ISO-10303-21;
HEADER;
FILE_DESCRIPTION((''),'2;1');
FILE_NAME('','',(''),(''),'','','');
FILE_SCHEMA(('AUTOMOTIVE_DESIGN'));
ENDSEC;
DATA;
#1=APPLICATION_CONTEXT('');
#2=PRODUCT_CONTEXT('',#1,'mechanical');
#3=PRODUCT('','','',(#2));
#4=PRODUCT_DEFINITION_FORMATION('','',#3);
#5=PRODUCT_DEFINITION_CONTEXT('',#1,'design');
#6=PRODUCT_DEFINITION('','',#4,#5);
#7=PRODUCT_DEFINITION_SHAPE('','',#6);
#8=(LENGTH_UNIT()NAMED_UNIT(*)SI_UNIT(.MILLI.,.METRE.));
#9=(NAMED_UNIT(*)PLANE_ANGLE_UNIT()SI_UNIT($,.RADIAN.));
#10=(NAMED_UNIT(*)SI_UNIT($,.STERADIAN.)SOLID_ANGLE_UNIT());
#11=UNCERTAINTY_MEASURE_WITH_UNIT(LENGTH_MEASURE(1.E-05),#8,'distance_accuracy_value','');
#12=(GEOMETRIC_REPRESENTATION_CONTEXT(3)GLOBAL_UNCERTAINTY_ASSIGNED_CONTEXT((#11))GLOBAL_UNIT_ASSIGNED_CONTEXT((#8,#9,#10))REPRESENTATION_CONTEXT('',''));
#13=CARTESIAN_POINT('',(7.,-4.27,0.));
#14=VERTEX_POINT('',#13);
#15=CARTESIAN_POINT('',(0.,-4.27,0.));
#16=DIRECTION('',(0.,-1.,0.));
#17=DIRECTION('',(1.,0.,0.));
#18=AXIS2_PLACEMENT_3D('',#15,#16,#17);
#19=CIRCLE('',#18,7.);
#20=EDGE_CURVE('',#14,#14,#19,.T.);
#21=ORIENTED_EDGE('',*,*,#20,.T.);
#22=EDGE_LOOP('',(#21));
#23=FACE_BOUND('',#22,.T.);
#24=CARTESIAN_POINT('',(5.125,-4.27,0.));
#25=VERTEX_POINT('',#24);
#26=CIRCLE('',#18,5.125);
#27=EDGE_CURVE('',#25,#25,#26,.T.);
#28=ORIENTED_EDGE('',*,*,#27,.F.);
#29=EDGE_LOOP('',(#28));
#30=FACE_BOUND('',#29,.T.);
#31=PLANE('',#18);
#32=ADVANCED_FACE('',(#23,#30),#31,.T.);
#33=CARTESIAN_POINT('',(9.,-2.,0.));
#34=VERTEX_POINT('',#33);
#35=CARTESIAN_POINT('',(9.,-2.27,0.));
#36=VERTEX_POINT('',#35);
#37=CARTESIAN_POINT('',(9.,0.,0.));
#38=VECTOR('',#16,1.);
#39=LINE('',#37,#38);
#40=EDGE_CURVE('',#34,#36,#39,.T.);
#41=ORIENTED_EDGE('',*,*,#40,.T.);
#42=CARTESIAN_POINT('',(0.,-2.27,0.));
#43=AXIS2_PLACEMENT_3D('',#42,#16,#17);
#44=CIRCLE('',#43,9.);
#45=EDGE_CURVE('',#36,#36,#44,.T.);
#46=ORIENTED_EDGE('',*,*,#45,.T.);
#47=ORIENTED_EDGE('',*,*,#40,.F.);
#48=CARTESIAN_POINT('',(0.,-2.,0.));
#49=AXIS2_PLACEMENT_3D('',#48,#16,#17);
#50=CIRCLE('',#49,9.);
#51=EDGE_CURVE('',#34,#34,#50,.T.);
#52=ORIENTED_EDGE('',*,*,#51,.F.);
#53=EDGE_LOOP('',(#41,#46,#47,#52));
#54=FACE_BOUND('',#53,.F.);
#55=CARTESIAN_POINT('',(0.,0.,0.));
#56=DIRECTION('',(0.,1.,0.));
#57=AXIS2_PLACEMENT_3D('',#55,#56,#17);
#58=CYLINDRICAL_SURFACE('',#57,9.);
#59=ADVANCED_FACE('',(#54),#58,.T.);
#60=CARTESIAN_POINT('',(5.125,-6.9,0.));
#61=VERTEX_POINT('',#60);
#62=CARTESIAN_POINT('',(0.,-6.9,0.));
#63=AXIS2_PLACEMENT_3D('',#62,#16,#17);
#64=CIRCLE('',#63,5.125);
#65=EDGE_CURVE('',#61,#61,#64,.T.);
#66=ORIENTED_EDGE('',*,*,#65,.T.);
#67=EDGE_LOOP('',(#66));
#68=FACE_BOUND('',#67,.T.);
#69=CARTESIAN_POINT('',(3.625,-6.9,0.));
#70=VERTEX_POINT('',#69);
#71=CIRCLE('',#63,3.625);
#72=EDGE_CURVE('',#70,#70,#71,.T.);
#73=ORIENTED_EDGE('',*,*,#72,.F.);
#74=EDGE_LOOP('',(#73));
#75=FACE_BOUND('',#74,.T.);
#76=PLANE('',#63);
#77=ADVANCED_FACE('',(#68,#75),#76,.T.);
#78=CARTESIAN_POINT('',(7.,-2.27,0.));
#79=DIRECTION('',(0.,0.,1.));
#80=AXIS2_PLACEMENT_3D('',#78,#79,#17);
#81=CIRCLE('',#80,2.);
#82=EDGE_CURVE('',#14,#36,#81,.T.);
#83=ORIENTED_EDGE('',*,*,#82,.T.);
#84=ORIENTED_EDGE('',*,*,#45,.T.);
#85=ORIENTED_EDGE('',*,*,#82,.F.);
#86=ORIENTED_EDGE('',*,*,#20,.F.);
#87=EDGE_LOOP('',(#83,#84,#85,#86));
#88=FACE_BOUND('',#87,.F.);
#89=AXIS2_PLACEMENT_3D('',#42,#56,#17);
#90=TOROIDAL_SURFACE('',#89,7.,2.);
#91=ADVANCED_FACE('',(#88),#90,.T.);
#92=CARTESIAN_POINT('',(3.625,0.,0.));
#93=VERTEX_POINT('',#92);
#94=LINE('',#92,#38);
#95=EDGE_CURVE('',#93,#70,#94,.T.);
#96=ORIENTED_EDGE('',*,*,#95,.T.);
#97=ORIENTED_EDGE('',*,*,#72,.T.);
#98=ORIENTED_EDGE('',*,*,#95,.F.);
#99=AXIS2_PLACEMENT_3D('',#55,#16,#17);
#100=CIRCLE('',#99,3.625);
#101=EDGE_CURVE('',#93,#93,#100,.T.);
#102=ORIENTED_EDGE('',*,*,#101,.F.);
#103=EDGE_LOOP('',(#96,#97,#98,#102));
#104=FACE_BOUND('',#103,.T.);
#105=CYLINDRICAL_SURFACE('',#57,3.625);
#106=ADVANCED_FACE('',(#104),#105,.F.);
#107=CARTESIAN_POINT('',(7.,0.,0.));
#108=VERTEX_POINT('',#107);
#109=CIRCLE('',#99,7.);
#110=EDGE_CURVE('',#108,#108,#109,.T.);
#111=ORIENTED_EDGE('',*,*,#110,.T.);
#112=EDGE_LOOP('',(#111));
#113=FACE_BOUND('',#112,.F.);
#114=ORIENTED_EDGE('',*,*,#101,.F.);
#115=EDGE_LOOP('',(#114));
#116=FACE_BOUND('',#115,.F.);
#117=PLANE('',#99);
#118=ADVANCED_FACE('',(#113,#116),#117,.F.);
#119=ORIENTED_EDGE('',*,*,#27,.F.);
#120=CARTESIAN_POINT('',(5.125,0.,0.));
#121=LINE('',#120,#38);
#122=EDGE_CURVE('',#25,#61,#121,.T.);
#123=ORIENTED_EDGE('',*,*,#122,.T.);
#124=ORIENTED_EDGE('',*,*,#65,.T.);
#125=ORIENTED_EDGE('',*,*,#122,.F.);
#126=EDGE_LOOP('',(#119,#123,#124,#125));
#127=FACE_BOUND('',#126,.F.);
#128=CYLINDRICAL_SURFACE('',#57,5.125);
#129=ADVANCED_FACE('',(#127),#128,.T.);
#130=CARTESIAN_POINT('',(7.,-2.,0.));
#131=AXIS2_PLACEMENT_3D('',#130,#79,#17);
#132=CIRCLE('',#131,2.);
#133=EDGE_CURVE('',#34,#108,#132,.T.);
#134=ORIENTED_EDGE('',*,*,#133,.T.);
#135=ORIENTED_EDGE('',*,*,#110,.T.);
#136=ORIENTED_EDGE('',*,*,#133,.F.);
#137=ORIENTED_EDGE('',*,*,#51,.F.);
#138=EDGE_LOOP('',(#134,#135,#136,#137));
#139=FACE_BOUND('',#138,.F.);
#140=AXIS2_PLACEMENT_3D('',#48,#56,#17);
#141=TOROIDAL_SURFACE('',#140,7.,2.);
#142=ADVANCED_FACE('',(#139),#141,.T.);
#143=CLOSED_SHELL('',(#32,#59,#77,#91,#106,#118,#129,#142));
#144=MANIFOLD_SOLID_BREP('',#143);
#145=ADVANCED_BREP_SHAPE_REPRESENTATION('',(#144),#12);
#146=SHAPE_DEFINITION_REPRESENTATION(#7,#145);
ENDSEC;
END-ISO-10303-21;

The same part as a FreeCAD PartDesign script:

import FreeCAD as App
import Part
import Sketcher


def edges_at(feature, points):
    """Names of the edges that pass closest to the given points."""
    edges = feature.Shape.Edges
    near = lambda p: min(range(len(edges)), key=lambda i: edges[i].distToShape(Part.Vertex(*p))[0])
    return sorted({f"Edge{near(p) + 1}" for p in points})

doc = App.newDocument("Part")
body = doc.addObject("PartDesign::Body", "Body")

# Sketch on XZ plane
sketch1 = body.newObject("Sketcher::SketchObject", "Sketch")
sketch1.AttachmentSupport = (doc.getObject("XZ_Plane"), [""])
sketch1.MapMode = "FlatFace"
sketch1.addGeometry([
    Part.Circle(App.Vector(0, 0, 0), App.Vector(0, 0, 1), 9),
    Part.Circle(App.Vector(0, 0, 0), App.Vector(0, 0, 1), 5.125),
], False)
sketch1.addConstraint([
    Sketcher.Constraint("Coincident", 0, 3, -1, 1),
    Sketcher.Constraint("Coincident", 1, 3, -1, 1),
    Sketcher.Constraint("Diameter", 0, 18.0),
    Sketcher.Constraint("Diameter", 1, 10.25),
])
pad1 = body.newObject("PartDesign::Pad", "Pad")
pad1.Profile = sketch1
pad1.Length = 4.27

# Sketch on XZ plane
sketch2 = body.newObject("Sketcher::SketchObject", "Sketch001")
sketch2.AttachmentSupport = (doc.getObject("XZ_Plane"), [""])
sketch2.MapMode = "FlatFace"
sketch2.addGeometry([
    Part.Circle(App.Vector(0, 0, 0), App.Vector(0, 0, 1), 5.125),
    Part.Circle(App.Vector(0, 0, 0), App.Vector(0, 0, 1), 3.625),
], False)
sketch2.addConstraint([
    Sketcher.Constraint("Coincident", 0, 3, -1, 1),
    Sketcher.Constraint("Coincident", 1, 3, -1, 1),
    Sketcher.Constraint("Diameter", 0, 10.25),
    Sketcher.Constraint("Diameter", 1, 7.25),
])
pad2 = body.newObject("PartDesign::Pad", "Pad001")
pad2.Profile = sketch2
pad2.Length = 6.9
doc.recompute()

fillet = body.newObject("PartDesign::Fillet", "Fillet")
fillet.Base = (pad2, edges_at(pad2, [(-9, -4.27, 0), (-9, 0, 0)]))
fillet.Radius = 2

doc.recompute()
